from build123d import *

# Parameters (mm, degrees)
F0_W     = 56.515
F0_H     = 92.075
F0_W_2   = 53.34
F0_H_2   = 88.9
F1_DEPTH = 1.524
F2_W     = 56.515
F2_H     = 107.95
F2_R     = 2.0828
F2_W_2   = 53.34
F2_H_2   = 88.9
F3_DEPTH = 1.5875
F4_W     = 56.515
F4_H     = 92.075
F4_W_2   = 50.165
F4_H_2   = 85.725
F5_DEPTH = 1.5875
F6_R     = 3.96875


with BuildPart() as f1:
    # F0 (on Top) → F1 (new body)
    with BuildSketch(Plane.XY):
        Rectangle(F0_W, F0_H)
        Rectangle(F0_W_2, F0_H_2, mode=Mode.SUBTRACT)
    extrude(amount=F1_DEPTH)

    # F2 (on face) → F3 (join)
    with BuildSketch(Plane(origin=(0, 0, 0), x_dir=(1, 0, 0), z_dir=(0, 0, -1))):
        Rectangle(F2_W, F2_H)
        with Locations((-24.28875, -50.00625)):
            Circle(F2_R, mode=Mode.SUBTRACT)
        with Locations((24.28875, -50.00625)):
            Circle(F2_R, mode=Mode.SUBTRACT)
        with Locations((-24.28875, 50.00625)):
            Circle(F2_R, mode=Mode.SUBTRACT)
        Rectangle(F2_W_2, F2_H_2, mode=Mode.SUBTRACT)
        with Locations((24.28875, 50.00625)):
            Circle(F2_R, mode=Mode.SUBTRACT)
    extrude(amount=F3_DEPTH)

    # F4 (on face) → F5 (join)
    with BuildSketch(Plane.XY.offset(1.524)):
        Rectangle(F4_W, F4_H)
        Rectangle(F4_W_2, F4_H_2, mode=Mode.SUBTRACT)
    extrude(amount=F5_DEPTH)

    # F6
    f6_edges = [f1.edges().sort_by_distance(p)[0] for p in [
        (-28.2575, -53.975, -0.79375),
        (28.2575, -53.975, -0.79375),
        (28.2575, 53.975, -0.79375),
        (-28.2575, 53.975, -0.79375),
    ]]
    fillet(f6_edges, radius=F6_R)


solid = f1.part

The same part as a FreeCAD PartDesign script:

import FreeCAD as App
import Part
import Sketcher
from FreeCAD import Vector
Q = App.Units.Quantity


def edges_at(feature, points):
    """Names of the edges that pass closest to the given points."""
    edges = feature.Shape.Edges
    near = lambda p: min(range(len(edges)), key=lambda i: edges[i].distToShape(Part.Vertex(*p))[0])
    return sorted({f"Edge{near(p) + 1}" for p in points})


def add_polygon(sketch, points):
    """Adds a closed chain of lines whose ends are joined by coincident constraints."""
    first, n = sketch.GeometryCount, len(points)
    for a, b in zip(points, points[1:] + points[:1]):
        sketch.addGeometry(Part.LineSegment(App.Vector(*a, 0), App.Vector(*b, 0)), False)
    for i in range(n):
        sketch.addConstraint(Sketcher.Constraint("Coincident", first + i, 2, first + (i + 1) % n, 1))

doc = App.newDocument("Part")
params = doc.addObject("Spreadsheet::Sheet", "Params")
for row, (alias, value) in enumerate([
    ("sketch1_width", "2.1 in"),
    ("sketch1_height", "3.5 in"),
    ("sketch1_width2", "2.225 in"),
    ("sketch1_height2", "3.625 in"),
    ("pad1_length", "0.06 in"),
    ("sketch2_diameter", "0.164 in"),
    ("sketch2_width", "2.1 in"),
    ("sketch2_height", "3.5 in"),
    ("sketch2_height2", "4.25 in"),
    ("sketch2_width2", "2.225 in"),
    ("pad2_length", "0.0625 in"),
    ("sketch3_width", "2.225 in"),
    ("sketch3_height", "3.625 in"),
    ("pad3_length", "0.0625 in"),
    ("fillet_radius", "0.15625 in"),
], start=1):
    params.set(f"A{row}", alias)
    params.set(f"B{row}", "=" + value)
    params.setAlias(f"B{row}", alias)

body = doc.addObject("PartDesign::Body", "Body")

# Sketch on XY plane
sketch1 = body.newObject("Sketcher::SketchObject", "Sketch")
sketch1.AttachmentSupport = (doc.getObject("XY_Plane"), [""])
sketch1.MapMode = "FlatFace"
add_polygon(sketch1, [(-28.2575, 46.0375), (-28.2575, -46.0375), (28.2575, -46.0375), (28.2575, 46.0375)])  # lines 0-3
add_polygon(sketch1, [(26.67, -44.45), (-26.67, -44.45), (-26.67, 44.45), (26.67, 44.45)])  # lines 4-7
sketch1.addConstraint([
    Sketcher.Constraint("Vertical", 0),
    Sketcher.Constraint("Horizontal", 1),
    Sketcher.Constraint("Vertical", 2),
    Sketcher.Constraint("Horizontal", 3),
    Sketcher.Constraint("Horizontal", 4),
    Sketcher.Constraint("Vertical", 5),
    Sketcher.Constraint("Horizontal", 6),
    Sketcher.Constraint("Vertical", 7),
    Sketcher.Constraint("Symmetric", 0, 2, 2, 2, -1, 1),
    Sketcher.Constraint("Symmetric", 4, 2, 6, 2, -1, 1),
    Sketcher.Constraint("DistanceX", 4, 2, 4, 1, Q("2.1 in")),
    Sketcher.Constraint("DistanceY", 5, 1, 5, 2, Q("3.5 in")),
    Sketcher.Constraint("DistanceX", 1, 1, 1, 2, Q("2.225 in")),
    Sketcher.Constraint("DistanceY", 0, 2, 0, 1, Q("3.625 in")),
])
sketch1.setExpression("Constraints[18]", "Params.sketch1_width")
sketch1.setExpression("Constraints[19]", "Params.sketch1_height")
sketch1.setExpression("Constraints[20]", "Params.sketch1_width2")
sketch1.setExpression("Constraints[21]", "Params.sketch1_height2")
pad1 = body.newObject("PartDesign::Pad", "Pad")
pad1.Profile = sketch1
pad1.setExpression("Length", "Params.pad1_length")

# Sketch on XY plane
sketch2 = body.newObject("Sketcher::SketchObject", "Sketch001")
sketch2.AttachmentSupport = (doc.getObject("XY_Plane"), [""])
sketch2.MapMode = "FlatFace"
add_polygon(sketch2, [(-28.2575, -53.975), (-28.2575, 53.975), (28.2575, 53.975), (28.2575, -53.975)])  # lines 0-3
sketch2.addGeometry(Part.Circle(Vector(-24.28875, 50.00625, 0), Vector(0, 0, 1), 2.0828), False)  # 4
sketch2.addGeometry(Part.Circle(Vector(24.28875, 50.00625, 0), Vector(0, 0, 1), 2.0828), False)  # 5
add_polygon(sketch2, [(26.67, 44.45), (-26.67, 44.45), (-26.67, -44.45), (26.67, -44.45)])  # lines 6-9
sketch2.addGeometry(Part.Circle(Vector(-24.28875, -50.00625, 0), Vector(0, 0, 1), 2.0828), False)  # 10
sketch2.addGeometry(Part.Circle(Vector(24.28875, -50.00625, 0), Vector(0, 0, 1), 2.0828), False)  # 11
sketch2.addConstraint([
    Sketcher.Constraint("Vertical", 0),
    Sketcher.Constraint("Horizontal", 1),
    Sketcher.Constraint("Vertical", 2),
    Sketcher.Constraint("Horizontal", 3),
    Sketcher.Constraint("Horizontal", 6),
    Sketcher.Constraint("Vertical", 7),
    Sketcher.Constraint("Horizontal", 8),
    Sketcher.Constraint("Vertical", 9),
    Sketcher.Constraint("Equal", 4, 5),
    Sketcher.Constraint("Equal", 5, 10),
    Sketcher.Constraint("Equal", 10, 11),
    Sketcher.Constraint("Symmetric", 5, 3, 10, 3, -1, 1),
    Sketcher.Constraint("Symmetric", 4, 3, 11, 3, -1, 1),
    Sketcher.Constraint("Symmetric", 0, 2, 2, 2, -1, 1),
    Sketcher.Constraint("Symmetric", 6, 2, 8, 2, -1, 1),
    Sketcher.Constraint("Symmetric", 4, 3, 5, 3, -2),
    Sketcher.Constraint("Diameter", 4, Q("0.164 in")),
    Sketcher.Constraint("DistanceX", 6, 2, 6, 1, Q("2.1 in")),
    Sketcher.Constraint("DistanceY", 7, 2, 7, 1, Q("3.5 in")),
    Sketcher.Constraint("DistanceY", 0, 1, 0, 2, Q("4.25 in")),
    Sketcher.Constraint("DistanceX", 1, 1, 1, 2, Q("2.225 in")),
    Sketcher.Constraint("DistanceY", -1, 1, 4, 3, Q("1.96875 in")),
    Sketcher.Constraint("DistanceX", 0, 2, 4, 3, Q("0.15625 in")),
])
sketch2.setExpression("Constraints[24]", "Params.sketch2_diameter")
sketch2.setExpression("Constraints[25]", "Params.sketch2_width")
sketch2.setExpression("Constraints[26]", "Params.sketch2_height")
sketch2.setExpression("Constraints[27]", "Params.sketch2_height2")
sketch2.setExpression("Constraints[28]", "Params.sketch2_width2")
pad2 = body.newObject("PartDesign::Pad", "Pad001")
pad2.Profile = sketch2
pad2.setExpression("Length", "Params.pad2_length")
pad2.Reversed = True

# Sketch on XY plane
sketch3 = body.newObject("Sketcher::SketchObject", "Sketch002")
sketch3.AttachmentSupport = (doc.getObject("XY_Plane"), [""])
sketch3.MapMode = "FlatFace"
sketch3.AttachmentOffset = App.Placement(Vector(0, 0, 0.06 * 25.4), App.Rotation())
add_polygon(sketch3, [(-28.2575, 46.0375), (-28.2575, -46.0375), (28.2575, -46.0375), (28.2575, 46.0375)])  # lines 0-3
add_polygon(sketch3, [(25.0825, -42.8625), (-25.0825, -42.8625), (-25.0825, 42.8625), (25.0825, 42.8625)])  # lines 4-7
sketch3.addConstraint([
    Sketcher.Constraint("Vertical", 0),
    Sketcher.Constraint("Horizontal", 1),
    Sketcher.Constraint("Vertical", 2),
    Sketcher.Constraint("Horizontal", 3),
    Sketcher.Constraint("Horizontal", 4),
    Sketcher.Constraint("Vertical", 5),
    Sketcher.Constraint("Horizontal", 6),
    Sketcher.Constraint("Vertical", 7),
    Sketcher.Constraint("Symmetric", 0, 2, 2, 2, -1, 1),
    Sketcher.Constraint("Symmetric", 4, 2, 6, 2, -1, 1),
    Sketcher.Constraint("DistanceX", 4, 2, 1, 2, Q("2.1 in")),
    Sketcher.Constraint("DistanceY", 4, 2, 3, 2, Q("3.5 in")),
    Sketcher.Constraint("DistanceX", 1, 1, 1, 2, Q("2.225 in")),
    Sketcher.Constraint("DistanceY", 0, 2, 0, 1, Q("3.625 in")),
])
sketch3.setExpression("Constraints[20]", "Params.sketch3_width")
sketch3.setExpression("Constraints[21]", "Params.sketch3_height")
pad3 = body.newObject("PartDesign::Pad", "Pad002")
pad3.Profile = sketch3
pad3.setExpression("Length", "Params.pad3_length")
doc.recompute()

fillet = body.newObject("PartDesign::Fillet", "Fillet")
fillet.Base = (pad3, edges_at(pad3, [
    (-28.258, -53.975, -0.794),
    (28.258, -53.975, -0.794),
    (28.258, 53.975, -0.794),
    (-28.258, 53.975, -0.794),
]))
fillet.setExpression("Radius", "Params.fillet_radius")

doc.recompute()
